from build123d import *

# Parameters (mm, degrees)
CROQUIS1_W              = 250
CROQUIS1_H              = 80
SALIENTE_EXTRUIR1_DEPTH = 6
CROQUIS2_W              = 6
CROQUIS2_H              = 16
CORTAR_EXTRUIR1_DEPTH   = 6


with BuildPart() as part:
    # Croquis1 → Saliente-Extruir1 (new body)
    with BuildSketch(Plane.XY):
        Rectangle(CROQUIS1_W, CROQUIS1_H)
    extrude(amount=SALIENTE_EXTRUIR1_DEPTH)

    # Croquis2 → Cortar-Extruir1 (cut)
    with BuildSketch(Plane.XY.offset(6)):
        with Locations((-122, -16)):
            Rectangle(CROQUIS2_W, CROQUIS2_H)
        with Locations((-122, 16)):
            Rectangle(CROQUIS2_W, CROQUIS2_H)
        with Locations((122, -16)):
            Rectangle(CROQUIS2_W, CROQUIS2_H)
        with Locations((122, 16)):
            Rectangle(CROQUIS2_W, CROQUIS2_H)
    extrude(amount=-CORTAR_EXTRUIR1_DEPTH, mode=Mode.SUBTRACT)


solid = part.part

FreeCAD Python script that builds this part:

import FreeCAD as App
import Part
import Sketcher

V = App.Vector

doc = App.newDocument("Part")
body = doc.addObject("PartDesign::Body", "Body")

sketch1 = body.newObject("Sketcher::SketchObject", "Sketch")
sketch1.AttachmentSupport = (doc.getObject("XY_Plane"), [""])
sketch1.MapMode = "FlatFace"
sketch1.addGeometry([
    Part.LineSegment(V(-125, 40, 0), V(-125, -40, 0)),
    Part.LineSegment(V(-125, -40, 0), V(125, -40, 0)),
    Part.LineSegment(V(125, -40, 0), V(125, 40, 0)),
    Part.LineSegment(V(125, 40, 0), V(-125, 40, 0)),
], False)
sketch1.addConstraint([
    Sketcher.Constraint("Coincident", 0, 2, 1, 1),
    Sketcher.Constraint("Coincident", 1, 2, 2, 1),
    Sketcher.Constraint("Coincident", 2, 2, 3, 1),
    Sketcher.Constraint("Coincident", 3, 2, 0, 1),
    Sketcher.Constraint("Vertical", 0),
    Sketcher.Constraint("Horizontal", 1),
    Sketcher.Constraint("Vertical", 2),
    Sketcher.Constraint("Horizontal", 3),
    Sketcher.Constraint("Symmetric", 0, 2, 2, 2, -1, 1),
    Sketcher.Constraint("DistanceX", 1, 1, 1, 2, 250.0),
    Sketcher.Constraint("DistanceY", 0, 2, 0, 1, 80.0),
])
pad1 = body.newObject("PartDesign::Pad", "Pad")
pad1.Profile = sketch1
pad1.Length = 6

sketch2 = body.newObject("Sketcher::SketchObject", "Sketch001")
sketch2.AttachmentSupport = (doc.getObject("XY_Plane"), [""])
sketch2.MapMode = "FlatFace"
sketch2.AttachmentOffset = App.Placement(V(0, 0, 6), App.Rotation())
sketch2.addGeometry([
    Part.LineSegment(V(-125, -8, 0), V(-125, -24, 0)),
    Part.LineSegment(V(-125, -24, 0), V(-119, -24, 0)),
    Part.LineSegment(V(-119, -24, 0), V(-119, -8, 0)),
    Part.LineSegment(V(-119, -8, 0), V(-125, -8, 0)),
    Part.LineSegment(V(-125, 24, 0), V(-125, 8, 0)),
    Part.LineSegment(V(-125, 8, 0), V(-119, 8, 0)),
    Part.LineSegment(V(-119, 8, 0), V(-119, 24, 0)),
    Part.LineSegment(V(-119, 24, 0), V(-125, 24, 0)),
    Part.LineSegment(V(119, -8, 0), V(119, -24, 0)),
    Part.LineSegment(V(119, -24, 0), V(125, -24, 0)),
    Part.LineSegment(V(125, -24, 0), V(125, -8, 0)),
    Part.LineSegment(V(125, -8, 0), V(119, -8, 0)),
    Part.LineSegment(V(119, 24, 0), V(119, 8, 0)),
    Part.LineSegment(V(119, 8, 0), V(125, 8, 0)),
    Part.LineSegment(V(125, 8, 0), V(125, 24, 0)),
    Part.LineSegment(V(125, 24, 0), V(119, 24, 0)),
], False)
sketch2.addConstraint([
    Sketcher.Constraint("Coincident", 0, 2, 1, 1),
    Sketcher.Constraint("Coincident", 1, 2, 2, 1),
    Sketcher.Constraint("Coincident", 2, 2, 3, 1),
    Sketcher.Constraint("Coincident", 3, 2, 0, 1),
    Sketcher.Constraint("Coincident", 4, 2, 5, 1),
    Sketcher.Constraint("Coincident", 5, 2, 6, 1),
    Sketcher.Constraint("Coincident", 6, 2, 7, 1),
    Sketcher.Constraint("Coincident", 7, 2, 4, 1),
    Sketcher.Constraint("Coincident", 8, 2, 9, 1),
    Sketcher.Constraint("Coincident", 9, 2, 10, 1),
    Sketcher.Constraint("Coincident", 10, 2, 11, 1),
    Sketcher.Constraint("Coincident", 11, 2, 8, 1),
    Sketcher.Constraint("Coincident", 12, 2, 13, 1),
    Sketcher.Constraint("Coincident", 13, 2, 14, 1),
    Sketcher.Constraint("Coincident", 14, 2, 15, 1),
    Sketcher.Constraint("Coincident", 15, 2, 12, 1),
    Sketcher.Constraint("Vertical", 0),
    Sketcher.Constraint("Horizontal", 1),
    Sketcher.Constraint("Vertical", 2),
    Sketcher.Constraint("Horizontal", 3),
    Sketcher.Constraint("Vertical", 4),
    Sketcher.Constraint("Horizontal", 5),
    Sketcher.Constraint("Vertical", 6),
    Sketcher.Constraint("Horizontal", 7),
    Sketcher.Constraint("Vertical", 8),
    Sketcher.Constraint("Horizontal", 9),
    Sketcher.Constraint("Vertical", 10),
    Sketcher.Constraint("Horizontal", 11),
    Sketcher.Constraint("Vertical", 12),
    Sketcher.Constraint("Horizontal", 13),
    Sketcher.Constraint("Vertical", 14),
    Sketcher.Constraint("Horizontal", 15),
    Sketcher.Constraint("Symmetric", 6, 2, 8, 2, -1, 1),
    Sketcher.Constraint("Symmetric", 4, 2, 10, 2, -1, 1),
    Sketcher.Constraint("Symmetric", 2, 2, 12, 2, -1, 1),
    Sketcher.Constraint("Symmetric", 0, 2, 14, 2, -1, 1),
    Sketcher.Constraint("Symmetric", 1, 2, 8, 2, -2),
    Sketcher.Constraint("Symmetric", 3, 2, 10, 2, -2),
    Sketcher.Constraint("DistanceX", 1, 1, 1, 2, 6.0),
    Sketcher.Constraint("DistanceY", 0, 2, 0, 1, 16.0),
    Sketcher.Constraint("DistanceX", 0, 2, -1, 1, 125.0),
    Sketcher.Constraint("DistanceY", 0, 2, -1, 1, 24.0),
])
pocket1 = body.newObject("PartDesign::Pocket", "Pocket")
pocket1.Profile = sketch2
pocket1.Length = 6

doc.recompute()
